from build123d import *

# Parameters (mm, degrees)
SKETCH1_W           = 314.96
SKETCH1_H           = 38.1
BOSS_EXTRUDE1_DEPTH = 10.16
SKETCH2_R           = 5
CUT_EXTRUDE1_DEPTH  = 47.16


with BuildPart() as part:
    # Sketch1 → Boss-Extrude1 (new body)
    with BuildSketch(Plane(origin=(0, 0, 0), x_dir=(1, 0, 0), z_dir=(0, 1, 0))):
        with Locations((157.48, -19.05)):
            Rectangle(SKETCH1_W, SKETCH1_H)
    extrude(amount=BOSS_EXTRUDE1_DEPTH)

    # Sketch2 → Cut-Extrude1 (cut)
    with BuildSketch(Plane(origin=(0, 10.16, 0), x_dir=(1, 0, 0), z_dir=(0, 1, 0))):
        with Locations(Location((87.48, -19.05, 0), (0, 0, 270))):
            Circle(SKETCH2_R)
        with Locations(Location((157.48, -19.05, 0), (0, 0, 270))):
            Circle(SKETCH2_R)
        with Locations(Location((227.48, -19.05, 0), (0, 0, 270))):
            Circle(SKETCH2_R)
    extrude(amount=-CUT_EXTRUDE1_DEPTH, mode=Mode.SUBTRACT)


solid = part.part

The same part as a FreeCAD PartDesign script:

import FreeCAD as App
import Part
import Sketcher
from FreeCAD import Vector
Q = App.Units.Quantity


def add_polygon(sketch, points):
    """Adds a closed chain of lines whose ends are joined by coincident constraints."""
    first, n = sketch.GeometryCount, len(points)
    for a, b in zip(points, points[1:] + points[:1]):
        sketch.addGeometry(Part.LineSegment(App.Vector(*a, 0), App.Vector(*b, 0)), False)
    for i in range(n):
        sketch.addConstraint(Sketcher.Constraint("Coincident", first + i, 2, first + (i + 1) % n, 1))

doc = App.newDocument("Part")
body = doc.addObject("PartDesign::Body", "Body")

sketch1 = doc.addObject("Sketcher::SketchObject", "Sketch")
body.addObject(sketch1)
sketch1.AttachmentSupport = (doc.XZ_Plane, [""])
sketch1.MapMode = "FlatFace"
add_polygon(sketch1, [(0, 0), (0, 38.1), (314.96, 38.1), (314.96, 0)])
sketch1.addConstraint([
    Sketcher.Constraint("Vertical", 0),
    Sketcher.Constraint("Horizontal", 1),
    Sketcher.Constraint("Vertical", 2),
    Sketcher.Constraint("Horizontal", 3),
    Sketcher.Constraint("Coincident", 3, 2, -1, 1),
    Sketcher.Constraint("DistanceX", 1, 1, 1, 2, Q("12.4 in")),
    Sketcher.Constraint("DistanceY", 0, 1, 0, 2, Q("1.5 in")),
])
pad1 = doc.addObject("PartDesign::Pad", "Pad")
body.addObject(pad1)
pad1.Profile = sketch1
pad1.Length = Q("0.4 in")
pad1.Reversed = True

sketch2 = doc.addObject("Sketcher::SketchObject", "Sketch001")
body.addObject(sketch2)
sketch2.AttachmentSupport = (doc.XZ_Plane, [""])
sketch2.MapMode = "FlatFace"
sketch2.AttachmentOffset = App.Placement(Vector(0, 0, -0.4 * 25.4), App.Rotation())
sketch2.addGeometry([
    Part.Circle(Vector(87.48, 19.05, 0), Vector(0, 0, 1), 5),
    Part.Circle(Vector(157.48, 19.05, 0), Vector(0, 0, 1), 5),
    Part.Circle(Vector(227.48, 19.05, 0), Vector(0, 0, 1), 5),
], False)
sketch2.addConstraint([
    Sketcher.Constraint("Equal", 0, 1),
    Sketcher.Constraint("Equal", 1, 2),
    Sketcher.Constraint("Horizontal", 0, 3, 1, 3),
    Sketcher.Constraint("Horizontal", 1, 3, 2, 3),
    Sketcher.Constraint("DistanceX", -1, 1, 1, 3, Q("6.2 in")),
    Sketcher.Constraint("Diameter", 0, Q("10 mm")),
    Sketcher.Constraint("DistanceY", -1, 1, 0, 3, Q("0.75 in")),
    Sketcher.Constraint("DistanceX", -1, 1, 0, 3, Q("87.48 mm")),
    Sketcher.Constraint("DistanceX", -1, 1, 2, 3, Q("227.48 mm")),
])
pocket1 = doc.addObject("PartDesign::Pocket", "Pocket")
body.addObject(pocket1)
pocket1.Profile = sketch2
pocket1.Length = 47.16
pocket1.Reversed = True

doc.recompute()
